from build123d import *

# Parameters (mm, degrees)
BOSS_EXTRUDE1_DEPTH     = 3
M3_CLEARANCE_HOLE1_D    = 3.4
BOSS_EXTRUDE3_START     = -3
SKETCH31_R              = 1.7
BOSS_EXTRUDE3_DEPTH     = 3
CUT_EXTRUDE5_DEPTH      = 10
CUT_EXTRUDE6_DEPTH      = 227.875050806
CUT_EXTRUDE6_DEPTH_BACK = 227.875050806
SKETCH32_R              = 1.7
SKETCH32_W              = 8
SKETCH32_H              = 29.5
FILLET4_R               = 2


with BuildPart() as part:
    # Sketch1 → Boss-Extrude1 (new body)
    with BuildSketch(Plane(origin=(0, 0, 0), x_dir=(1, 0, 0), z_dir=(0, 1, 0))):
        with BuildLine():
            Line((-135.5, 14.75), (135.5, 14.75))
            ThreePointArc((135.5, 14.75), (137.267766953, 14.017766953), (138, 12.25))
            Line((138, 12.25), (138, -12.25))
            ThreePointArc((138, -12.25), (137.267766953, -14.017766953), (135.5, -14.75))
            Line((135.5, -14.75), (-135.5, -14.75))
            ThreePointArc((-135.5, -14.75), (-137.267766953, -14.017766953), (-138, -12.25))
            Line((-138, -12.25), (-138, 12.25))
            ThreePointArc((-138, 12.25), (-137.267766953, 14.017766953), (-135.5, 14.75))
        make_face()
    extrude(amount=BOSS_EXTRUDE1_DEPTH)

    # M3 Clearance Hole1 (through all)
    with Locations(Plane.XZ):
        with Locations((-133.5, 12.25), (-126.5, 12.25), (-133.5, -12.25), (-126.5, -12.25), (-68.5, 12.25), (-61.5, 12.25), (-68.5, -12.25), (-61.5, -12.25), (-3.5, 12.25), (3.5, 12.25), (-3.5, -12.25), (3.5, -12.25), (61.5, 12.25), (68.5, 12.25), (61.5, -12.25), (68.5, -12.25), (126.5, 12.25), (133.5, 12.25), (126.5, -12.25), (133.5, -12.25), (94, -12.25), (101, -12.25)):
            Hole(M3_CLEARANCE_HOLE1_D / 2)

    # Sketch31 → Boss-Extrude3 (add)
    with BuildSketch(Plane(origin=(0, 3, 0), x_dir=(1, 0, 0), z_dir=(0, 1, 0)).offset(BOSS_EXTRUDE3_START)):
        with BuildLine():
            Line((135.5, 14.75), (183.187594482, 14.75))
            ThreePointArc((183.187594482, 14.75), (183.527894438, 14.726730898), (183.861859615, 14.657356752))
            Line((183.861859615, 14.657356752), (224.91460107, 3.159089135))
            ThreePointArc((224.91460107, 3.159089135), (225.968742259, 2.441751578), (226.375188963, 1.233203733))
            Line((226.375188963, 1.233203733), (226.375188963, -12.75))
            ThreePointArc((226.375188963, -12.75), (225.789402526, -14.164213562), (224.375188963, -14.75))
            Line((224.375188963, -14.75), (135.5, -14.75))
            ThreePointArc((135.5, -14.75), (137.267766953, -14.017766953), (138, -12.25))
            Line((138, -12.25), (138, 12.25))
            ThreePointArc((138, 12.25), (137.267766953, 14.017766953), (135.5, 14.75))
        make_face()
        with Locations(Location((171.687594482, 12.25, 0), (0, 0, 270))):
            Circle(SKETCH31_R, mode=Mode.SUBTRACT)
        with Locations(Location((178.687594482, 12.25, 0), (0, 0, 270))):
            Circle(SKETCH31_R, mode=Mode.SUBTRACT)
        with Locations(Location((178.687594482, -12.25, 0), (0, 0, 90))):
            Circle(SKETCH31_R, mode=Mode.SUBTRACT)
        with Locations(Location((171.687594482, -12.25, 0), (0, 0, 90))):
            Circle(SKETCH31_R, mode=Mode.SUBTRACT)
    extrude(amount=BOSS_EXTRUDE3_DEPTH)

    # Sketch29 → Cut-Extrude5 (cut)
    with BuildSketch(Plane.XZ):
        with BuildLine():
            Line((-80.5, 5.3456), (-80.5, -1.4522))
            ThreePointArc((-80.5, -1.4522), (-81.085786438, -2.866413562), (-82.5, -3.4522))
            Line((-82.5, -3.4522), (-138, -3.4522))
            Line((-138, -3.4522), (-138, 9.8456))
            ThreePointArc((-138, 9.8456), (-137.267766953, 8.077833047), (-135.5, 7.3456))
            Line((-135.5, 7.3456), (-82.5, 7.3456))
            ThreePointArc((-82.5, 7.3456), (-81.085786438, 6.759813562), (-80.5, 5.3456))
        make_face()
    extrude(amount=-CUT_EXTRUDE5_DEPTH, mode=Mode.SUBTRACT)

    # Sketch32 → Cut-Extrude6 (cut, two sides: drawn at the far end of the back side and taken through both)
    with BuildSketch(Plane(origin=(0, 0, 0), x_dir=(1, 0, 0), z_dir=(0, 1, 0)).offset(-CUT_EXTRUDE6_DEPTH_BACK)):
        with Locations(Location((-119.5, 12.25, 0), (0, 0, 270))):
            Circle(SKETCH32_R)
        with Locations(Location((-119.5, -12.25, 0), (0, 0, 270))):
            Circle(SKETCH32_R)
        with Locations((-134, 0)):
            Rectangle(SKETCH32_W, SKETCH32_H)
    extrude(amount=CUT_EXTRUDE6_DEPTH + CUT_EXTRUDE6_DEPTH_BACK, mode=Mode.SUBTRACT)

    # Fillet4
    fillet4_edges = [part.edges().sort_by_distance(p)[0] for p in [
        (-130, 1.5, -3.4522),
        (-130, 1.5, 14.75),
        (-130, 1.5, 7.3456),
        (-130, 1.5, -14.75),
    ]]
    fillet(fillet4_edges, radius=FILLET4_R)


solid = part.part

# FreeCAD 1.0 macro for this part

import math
import FreeCAD as App
import Part
import Sketcher
Q = App.Units.Quantity


def edges_at(feature, points):
    """Names of the edges that pass closest to the given points."""
    edges = feature.Shape.Edges
    near = lambda p: min(range(len(edges)), key=lambda i: edges[i].distToShape(Part.Vertex(*p))[0])
    return sorted({f"Edge{near(p) + 1}" for p in points})


def add_polygon(sketch, points):
    """Adds a closed chain of lines whose ends are joined by coincident constraints."""
    first, n = sketch.GeometryCount, len(points)
    for a, b in zip(points, points[1:] + points[:1]):
        sketch.addGeometry(Part.LineSegment(App.Vector(*a, 0), App.Vector(*b, 0)), False)
    for i in range(n):
        sketch.addConstraint(Sketcher.Constraint("Coincident", first + i, 2, first + (i + 1) % n, 1))

doc = App.newDocument("Part")
params = doc.addObject("Spreadsheet::Sheet", "Params")
for row, (alias, value) in enumerate([
    ("sketch1_radius", "2.5 mm"),
    ("sketch1_width", "271 mm"),
    ("sketch1_height", "24.5 mm"),
    ("pad1_length", "3 mm"),
    ("sketch2_diameter", "3.4 mm"),
    ("hole_diameter", "3.4 mm"),
    ("sketch3_radius", "2 mm"),
    ("sketch3_diameter", "3.4 mm"),
    ("sketch3_radius2", "2.5 mm"),
    ("sketch3_height", "24.5 mm"),
    ("pad2_length", "3 mm"),
    ("sketch4_radius", "2 mm"),
    ("sketch4_radius2", "2.5 mm"),
    ("sketch4_width", "53 mm"),
    ("pocket1_length", "10 mm"),
    ("sketch5_diameter", "3.4 mm"),
    ("sketch5_width", "8 mm"),
    ("sketch5_height", "29.5 mm"),
    ("fillet_radius", "2 mm"),
], start=1):
    params.set(f"A{row}", alias)
    params.set(f"B{row}", "=" + value)
    params.setAlias(f"B{row}", alias)

body = doc.addObject("PartDesign::Body", "Body")

sketch1 = body.newObject("Sketcher::SketchObject", "Sketch")
sketch1.AttachmentSupport = (doc.getObject("XZ_Plane"), [""])
sketch1.MapMode = "FlatFace"
sketch1.addGeometry([
    Part.LineSegment(App.Vector(135.5, -14.75, 0), App.Vector(-135.5, -14.75, 0)),
    Part.ArcOfCircle(Part.Circle(App.Vector(-135.5, -12.25, 0), App.Vector(0, 0, 1), 2.5), math.radians(180), math.radians(270)),
    Part.LineSegment(App.Vector(-138, -12.25, 0), App.Vector(-138, 12.25, 0)),
    Part.ArcOfCircle(Part.Circle(App.Vector(-135.5, 12.25, 0), App.Vector(0, 0, 1), 2.5), math.radians(90), math.radians(180)),
    Part.LineSegment(App.Vector(-135.5, 14.75, 0), App.Vector(135.5, 14.75, 0)),
    Part.ArcOfCircle(Part.Circle(App.Vector(135.5, 12.25, 0), App.Vector(0, 0, 1), 2.5), math.radians(0), math.radians(90)),
    Part.LineSegment(App.Vector(138, 12.25, 0), App.Vector(138, -12.25, 0)),
    Part.ArcOfCircle(Part.Circle(App.Vector(135.5, -12.25, 0), App.Vector(0, 0, 1), 2.5), math.radians(-90), math.radians(0)),
], False)
sketch1.addConstraint([
    Sketcher.Constraint("Tangent", 0, 2, 1, 2),
    Sketcher.Constraint("Tangent", 1, 1, 2, 1),
    Sketcher.Constraint("Tangent", 2, 2, 3, 2),
    Sketcher.Constraint("Tangent", 3, 1, 4, 1),
    Sketcher.Constraint("Tangent", 4, 2, 5, 2),
    Sketcher.Constraint("Tangent", 5, 1, 6, 1),
    Sketcher.Constraint("Tangent", 6, 2, 7, 2),
    Sketcher.Constraint("Tangent", 7, 1, 0, 1),
    Sketcher.Constraint("Horizontal", 0),
    Sketcher.Constraint("Vertical", 2),
    Sketcher.Constraint("Horizontal", 4),
    Sketcher.Constraint("Vertical", 6),
    Sketcher.Constraint("Equal", 1, 3),
    Sketcher.Constraint("Equal", 3, 5),
    Sketcher.Constraint("Equal", 5, 7),
    Sketcher.Constraint("Symmetric", 1, 3, 5, 3, -1, 1),
    Sketcher.Constraint("Radius", 1, Q("2.5 mm")),
    Sketcher.Constraint("DistanceX", 0, 2, 0, 1, Q("271 mm")),
    Sketcher.Constraint("DistanceY", 2, 1, 2, 2, Q("24.5 mm")),
])
sketch1.setExpression("Constraints[16]", "Params.sketch1_radius")
sketch1.setExpression("Constraints[17]", "Params.sketch1_width")
sketch1.setExpression("Constraints[18]", "Params.sketch1_height")
pad1 = body.newObject("PartDesign::Pad", "Pad")
pad1.Profile = sketch1
pad1.setExpression("Length", "Params.pad1_length")
pad1.Reversed = True

sketch2 = body.newObject("Sketcher::SketchObject", "Sketch001")
sketch2.AttachmentSupport = (doc.getObject("XZ_Plane"), [""])
sketch2.MapMode = "FlatFace"
sketch2.addGeometry([
    Part.Circle(App.Vector(-133.5, 12.25, 0), App.Vector(0, 0, 1), 1.7),
    Part.Circle(App.Vector(-126.5, 12.25, 0), App.Vector(0, 0, 1), 1.7),
    Part.Circle(App.Vector(-133.5, -12.25, 0), App.Vector(0, 0, 1), 1.7),
    Part.Circle(App.Vector(-126.5, -12.25, 0), App.Vector(0, 0, 1), 1.7),
    Part.Circle(App.Vector(-68.5, 12.25, 0), App.Vector(0, 0, 1), 1.7),
    Part.Circle(App.Vector(-61.5, 12.25, 0), App.Vector(0, 0, 1), 1.7),
    Part.Circle(App.Vector(-68.5, -12.25, 0), App.Vector(0, 0, 1), 1.7),
    Part.Circle(App.Vector(-61.5, -12.25, 0), App.Vector(0, 0, 1), 1.7),
    Part.Circle(App.Vector(-3.5, 12.25, 0), App.Vector(0, 0, 1), 1.7),
    Part.Circle(App.Vector(3.5, 12.25, 0), App.Vector(0, 0, 1), 1.7),
    Part.Circle(App.Vector(-3.5, -12.25, 0), App.Vector(0, 0, 1), 1.7),
    Part.Circle(App.Vector(3.5, -12.25, 0), App.Vector(0, 0, 1), 1.7),
    Part.Circle(App.Vector(61.5, 12.25, 0), App.Vector(0, 0, 1), 1.7),
    Part.Circle(App.Vector(68.5, 12.25, 0), App.Vector(0, 0, 1), 1.7),
    Part.Circle(App.Vector(61.5, -12.25, 0), App.Vector(0, 0, 1), 1.7),
    Part.Circle(App.Vector(68.5, -12.25, 0), App.Vector(0, 0, 1), 1.7),
    Part.Circle(App.Vector(126.5, 12.25, 0), App.Vector(0, 0, 1), 1.7),
    Part.Circle(App.Vector(133.5, 12.25, 0), App.Vector(0, 0, 1), 1.7),
    Part.Circle(App.Vector(126.5, -12.25, 0), App.Vector(0, 0, 1), 1.7),
    Part.Circle(App.Vector(133.5, -12.25, 0), App.Vector(0, 0, 1), 1.7),
    Part.Circle(App.Vector(94, -12.25, 0), App.Vector(0, 0, 1), 1.7),
    Part.Circle(App.Vector(101, -12.25, 0), App.Vector(0, 0, 1), 1.7),
], False)
sketch2.addConstraint([
    Sketcher.Constraint("Equal", 0, 1),
    Sketcher.Constraint("Equal", 1, 2),
    Sketcher.Constraint("Equal", 2, 3),
    Sketcher.Constraint("Equal", 3, 4),
    Sketcher.Constraint("Equal", 4, 5),
    Sketcher.Constraint("Equal", 5, 6),
    Sketcher.Constraint("Equal", 6, 7),
    Sketcher.Constraint("Equal", 7, 8),
    Sketcher.Constraint("Equal", 8, 9),
    Sketcher.Constraint("Equal", 9, 10),
    Sketcher.Constraint("Equal", 10, 11),
    Sketcher.Constraint("Equal", 11, 12),
    Sketcher.Constraint("Equal", 12, 13),
    Sketcher.Constraint("Equal", 13, 14),
    Sketcher.Constraint("Equal", 14, 15),
    Sketcher.Constraint("Equal", 15, 16),
    Sketcher.Constraint("Equal", 16, 17),
    Sketcher.Constraint("Equal", 17, 18),
    Sketcher.Constraint("Equal", 18, 19),
    Sketcher.Constraint("Equal", 19, 20),
    Sketcher.Constraint("Equal", 20, 21),
    Sketcher.Constraint("Symmetric", 9, 3, 10, 3, -1, 1),
    Sketcher.Constraint("Symmetric", 8, 3, 11, 3, -1, 1),
    Sketcher.Constraint("Symmetric", 7, 3, 12, 3, -1, 1),
    Sketcher.Constraint("Symmetric", 6, 3, 13, 3, -1, 1),
    Sketcher.Constraint("Symmetric", 5, 3, 14, 3, -1, 1),
    Sketcher.Constraint("Symmetric", 4, 3, 15, 3, -1, 1),
    Sketcher.Constraint("Symmetric", 3, 3, 16, 3, -1, 1),
    Sketcher.Constraint("Symmetric", 2, 3, 17, 3, -1, 1),
    Sketcher.Constraint("Symmetric", 1, 3, 18, 3, -1, 1),
    Sketcher.Constraint("Symmetric", 0, 3, 19, 3, -1, 1),
    Sketcher.Constraint("Symmetric", 8, 3, 9, 3, -2),
    Sketcher.Constraint("Symmetric", 5, 3, 12, 3, -2),
    Sketcher.Constraint("Symmetric", 4, 3, 13, 3, -2),
    Sketcher.Constraint("Symmetric", 1, 3, 16, 3, -2),
    Sketcher.Constraint("Symmetric", 0, 3, 17, 3, -2),
    Sketcher.Constraint("Horizontal", 0, 3, 1, 3),
    Sketcher.Constraint("Horizontal", 1, 3, 4, 3),
    Sketcher.Constraint("Horizontal", 4, 3, 5, 3),
    Sketcher.Constraint("Horizontal", 5, 3, 8, 3),
    Sketcher.Constraint("Horizontal", 19, 3, 20, 3),
    Sketcher.Constraint("Horizontal", 20, 3, 21, 3),
    Sketcher.Constraint("Diameter", 0, Q("3.4 mm")),
    Sketcher.Constraint("DistanceX", -1, 1, 20, 3, Q("94 mm")),
    Sketcher.Constraint("DistanceX", -1, 1, 21, 3, Q("101 mm")),
    Sketcher.Constraint("DistanceX", 0, 3, 1, 3, Q("7 mm")),
    Sketcher.Constraint("DistanceX", 1, 3, 4, 3, Q("58 mm")),
    Sketcher.Constraint("DistanceX", 4, 3, 5, 3, Q("7 mm")),
    Sketcher.Constraint("DistanceX", 5, 3, 8, 3, Q("58 mm")),
    Sketcher.Constraint("DistanceX", 8, 3, 9, 3, Q("7 mm")),
    Sketcher.Constraint("DistanceY", 2, 3, 0, 3, Q("24.5 mm")),
])
sketch2.setExpression("Constraints[42]", "Params.sketch2_diameter")
doc.recompute()
hole = body.newObject("PartDesign::Hole", "Hole")
hole.Profile = sketch2
hole.ThreadType = "None"
hole.setExpression("Diameter", "Params.hole_diameter")
hole.DepthType = "ThroughAll"

sketch3 = body.newObject("Sketcher::SketchObject", "Sketch002")
sketch3.AttachmentSupport = (doc.getObject("XZ_Plane"), [""])
sketch3.MapMode = "FlatFace"
sketch3.addGeometry([
    Part.LineSegment(App.Vector(183.187594, -14.75, 0), App.Vector(135.5, -14.75, 0)),
    Part.ArcOfCircle(Part.Circle(App.Vector(135.5, -12.25, 0), App.Vector(0, 0, 1), 2.5), math.radians(-90), math.radians(0)),
    Part.LineSegment(App.Vector(138, -12.25, 0), App.Vector(138, 12.25, 0)),
    Part.ArcOfCircle(Part.Circle(App.Vector(135.5, 12.25, 0), App.Vector(0, 0, 1), 2.5), math.radians(0), math.radians(90)),
    Part.LineSegment(App.Vector(135.5, 14.75, 0), App.Vector(224.375189, 14.75, 0)),
    Part.ArcOfCircle(Part.Circle(App.Vector(224.375189, 12.75, 0), App.Vector(0, 0, 1), 2), math.radians(0), math.radians(90)),
    Part.LineSegment(App.Vector(226.375189, 12.75, 0), App.Vector(226.375189, -1.233204, 0)),
    Part.ArcOfCircle(Part.Circle(App.Vector(224.375189, -1.233204, 0), App.Vector(0, 0, 1), 2), math.radians(-74.353224), math.radians(0)),
    Part.LineSegment(App.Vector(224.914601, -3.159089, 0), App.Vector(183.86186, -14.657357, 0)),
    Part.ArcOfCircle(Part.Circle(App.Vector(183.187594, -12.25, 0), App.Vector(0, 0, 1), 2.5), math.radians(-90), math.radians(-74.353224)),
    Part.Circle(App.Vector(178.687594, 12.25, 0), App.Vector(0, 0, 1), 1.7),
    Part.Circle(App.Vector(171.687594, 12.25, 0), App.Vector(0, 0, 1), 1.7),
    Part.Circle(App.Vector(178.687594, -12.25, 0), App.Vector(0, 0, 1), 1.7),
    Part.Circle(App.Vector(171.687594, -12.25, 0), App.Vector(0, 0, 1), 1.7),
], False)
sketch3.addConstraint([
    Sketcher.Constraint("Tangent", 0, 2, 1, 1),
    Sketcher.Constraint("Tangent", 1, 2, 2, 1),
    Sketcher.Constraint("Tangent", 2, 2, 3, 1),
    Sketcher.Constraint("Tangent", 3, 2, 4, 1),
    Sketcher.Constraint("Tangent", 4, 2, 5, 2),
    Sketcher.Constraint("Tangent", 5, 1, 6, 1),
    Sketcher.Constraint("Tangent", 6, 2, 7, 2),
    Sketcher.Constraint("Tangent", 7, 1, 8, 1),
    Sketcher.Constraint("Tangent", 8, 2, 9, 2),
    Sketcher.Constraint("Tangent", 9, 1, 0, 1),
    Sketcher.Constraint("Horizontal", 0),
    Sketcher.Constraint("Vertical", 2),
    Sketcher.Constraint("Horizontal", 4),
    Sketcher.Constraint("Vertical", 6),
    Sketcher.Constraint("Equal", 1, 3),
    Sketcher.Constraint("Equal", 5, 7),
    Sketcher.Constraint("Equal", 3, 9),
    Sketcher.Constraint("Equal", 10, 11),
    Sketcher.Constraint("Equal", 11, 12),
    Sketcher.Constraint("Equal", 12, 13),
    Sketcher.Constraint("Symmetric", 10, 3, 12, 3, -1),
    Sketcher.Constraint("Symmetric", 11, 3, 13, 3, -1),
    Sketcher.Constraint("Horizontal", 3, 3, 10, 3),
    Sketcher.Constraint("Horizontal", 10, 3, 11, 3),
    Sketcher.Constraint("Horizontal", 9, 3, 12, 3),
    Sketcher.Constraint("Radius", 5, Q("2 mm")),
    Sketcher.Constraint("Diameter", 10, Q("3.4 mm")),
    Sketcher.Constraint("Radius", 1, Q("2.5 mm")),
    Sketcher.Constraint("DistanceY", 2, 1, 2, 2, Q("24.5 mm")),
    Sketcher.Constraint("DistanceX", -1, 1, 1, 2, Q("138 mm")),
    Sketcher.Constraint("DistanceX", 11, 3, 10, 3, Q("7 mm")),
    Sketcher.Constraint("DistanceX", 10, 3, 9, 3, Q("4.5 mm")),
    Sketcher.Constraint("DistanceX", 4, 1, 4, 2, Q("88.875189 mm")),
    Sketcher.Constraint("DistanceX", -1, 1, 7, 1, Q("224.914601 mm")),
    Sketcher.Constraint("Distance", 8, Q("42.63259 mm")),
])
sketch3.setExpression("Constraints[25]", "Params.sketch3_radius")
sketch3.setExpression("Constraints[26]", "Params.sketch3_diameter")
sketch3.setExpression("Constraints[27]", "Params.sketch3_radius2")
sketch3.setExpression("Constraints[28]", "Params.sketch3_height")
pad2 = body.newObject("PartDesign::Pad", "Pad001")
pad2.Profile = sketch3
pad2.setExpression("Length", "Params.pad2_length")
pad2.Reversed = True

sketch4 = body.newObject("Sketcher::SketchObject", "Sketch003")
sketch4.AttachmentSupport = (doc.getObject("XZ_Plane"), [""])
sketch4.MapMode = "FlatFace"
sketch4.addGeometry([
    Part.LineSegment(App.Vector(-80.5, -1.4522, 0), App.Vector(-80.5, 5.3456, 0)),
    Part.ArcOfCircle(Part.Circle(App.Vector(-82.5, 5.3456, 0), App.Vector(0, 0, 1), 2), math.radians(0), math.radians(90)),
    Part.LineSegment(App.Vector(-82.5, 7.3456, 0), App.Vector(-135.5, 7.3456, 0)),
    Part.ArcOfCircle(Part.Circle(App.Vector(-135.5, 9.8456, 0), App.Vector(0, 0, 1), 2.5), math.radians(180), math.radians(270)),
    Part.LineSegment(App.Vector(-138, 9.8456, 0), App.Vector(-138, -3.4522, 0)),
    Part.LineSegment(App.Vector(-138, -3.4522, 0), App.Vector(-82.5, -3.4522, 0)),
    Part.ArcOfCircle(Part.Circle(App.Vector(-82.5, -1.4522, 0), App.Vector(0, 0, 1), 2), math.radians(-90), math.radians(0)),
], False)
sketch4.addConstraint([
    Sketcher.Constraint("Tangent", 0, 2, 1, 1),
    Sketcher.Constraint("Tangent", 1, 2, 2, 1),
    Sketcher.Constraint("Tangent", 2, 2, 3, 2),
    Sketcher.Constraint("Tangent", 3, 1, 4, 1),
    Sketcher.Constraint("Coincident", 4, 2, 5, 1),
    Sketcher.Constraint("Tangent", 5, 2, 6, 1),
    Sketcher.Constraint("Tangent", 6, 2, 0, 1),
    Sketcher.Constraint("Vertical", 0),
    Sketcher.Constraint("Horizontal", 2),
    Sketcher.Constraint("Vertical", 4),
    Sketcher.Constraint("Horizontal", 5),
    Sketcher.Constraint("Equal", 1, 6),
    Sketcher.Constraint("Radius", 1, Q("2 mm")),
    Sketcher.Constraint("Radius", 3, Q("2.5 mm")),
    Sketcher.Constraint("DistanceX", 2, 2, 2, 1, Q("53 mm")),
    Sketcher.Constraint("DistanceX", 3, 1, -1, 1, Q("138 mm")),
    Sketcher.Constraint("DistanceY", 0, 1, 0, 2, Q("6.7978 mm")),
    Sketcher.Constraint("DistanceY", -1, 1, 1, 3, Q("5.3456 mm")),
])
sketch4.setExpression("Constraints[12]", "Params.sketch4_radius")
sketch4.setExpression("Constraints[13]", "Params.sketch4_radius2")
sketch4.setExpression("Constraints[14]", "Params.sketch4_width")
pocket1 = body.newObject("PartDesign::Pocket", "Pocket")
pocket1.Profile = sketch4
pocket1.setExpression("Length", "Params.pocket1_length")

sketch5 = body.newObject("Sketcher::SketchObject", "Sketch004")
sketch5.AttachmentSupport = (doc.getObject("XZ_Plane"), [""])
sketch5.MapMode = "FlatFace"
sketch5.addGeometry(Part.Circle(App.Vector(-119.5, -12.25, 0), App.Vector(0, 0, 1), 1.7), False)
sketch5.addGeometry(Part.Circle(App.Vector(-119.5, 12.25, 0), App.Vector(0, 0, 1), 1.7), False)
add_polygon(sketch5, [(-138, -14.75), (-138, 14.75), (-130, 14.75), (-130, -14.75)])
sketch5.addConstraint([
    Sketcher.Constraint("Vertical", 2),
    Sketcher.Constraint("Horizontal", 3),
    Sketcher.Constraint("Vertical", 4),
    Sketcher.Constraint("Horizontal", 5),
    Sketcher.Constraint("Equal", 0, 1),
    Sketcher.Constraint("Symmetric", 0, 3, 1, 3, -1),
    Sketcher.Constraint("Diameter", 0, Q("3.4 mm")),
    Sketcher.Constraint("DistanceX", 3, 1, 3, 2, Q("8 mm")),
    Sketcher.Constraint("DistanceY", 2, 1, 2, 2, Q("29.5 mm")),
    Sketcher.Constraint("DistanceX", 2, 2, -1, 1, Q("138 mm")),
    Sketcher.Constraint("DistanceY", 0, 3, 2, 2, Q("27 mm")),
    Sketcher.Constraint("DistanceY", 4, 2, 1, 3, Q("27 mm")),
    Sketcher.Constraint("DistanceX", 0, 3, -1, 1, Q("119.5 mm")),
])
sketch5.setExpression("Constraints[10]", "Params.sketch5_diameter")
sketch5.setExpression("Constraints[11]", "Params.sketch5_width")
sketch5.setExpression("Constraints[12]", "Params.sketch5_height")
pocket2 = body.newObject("PartDesign::Pocket", "Pocket001")
pocket2.Profile = sketch5
pocket2.Type = "ThroughAll"
pocket2.Midplane = True
doc.recompute()

fillet = body.newObject("PartDesign::Fillet", "Fillet")
fillet.Base = (pocket2, edges_at(pocket2, [
    (-130, 1.5, -3.452),
    (-130, 1.5, 14.75),
    (-130, 1.5, 7.346),
    (-130, 1.5, -14.75),
]))
fillet.setExpression("Radius", "Params.fillet_radius")

doc.recompute()
